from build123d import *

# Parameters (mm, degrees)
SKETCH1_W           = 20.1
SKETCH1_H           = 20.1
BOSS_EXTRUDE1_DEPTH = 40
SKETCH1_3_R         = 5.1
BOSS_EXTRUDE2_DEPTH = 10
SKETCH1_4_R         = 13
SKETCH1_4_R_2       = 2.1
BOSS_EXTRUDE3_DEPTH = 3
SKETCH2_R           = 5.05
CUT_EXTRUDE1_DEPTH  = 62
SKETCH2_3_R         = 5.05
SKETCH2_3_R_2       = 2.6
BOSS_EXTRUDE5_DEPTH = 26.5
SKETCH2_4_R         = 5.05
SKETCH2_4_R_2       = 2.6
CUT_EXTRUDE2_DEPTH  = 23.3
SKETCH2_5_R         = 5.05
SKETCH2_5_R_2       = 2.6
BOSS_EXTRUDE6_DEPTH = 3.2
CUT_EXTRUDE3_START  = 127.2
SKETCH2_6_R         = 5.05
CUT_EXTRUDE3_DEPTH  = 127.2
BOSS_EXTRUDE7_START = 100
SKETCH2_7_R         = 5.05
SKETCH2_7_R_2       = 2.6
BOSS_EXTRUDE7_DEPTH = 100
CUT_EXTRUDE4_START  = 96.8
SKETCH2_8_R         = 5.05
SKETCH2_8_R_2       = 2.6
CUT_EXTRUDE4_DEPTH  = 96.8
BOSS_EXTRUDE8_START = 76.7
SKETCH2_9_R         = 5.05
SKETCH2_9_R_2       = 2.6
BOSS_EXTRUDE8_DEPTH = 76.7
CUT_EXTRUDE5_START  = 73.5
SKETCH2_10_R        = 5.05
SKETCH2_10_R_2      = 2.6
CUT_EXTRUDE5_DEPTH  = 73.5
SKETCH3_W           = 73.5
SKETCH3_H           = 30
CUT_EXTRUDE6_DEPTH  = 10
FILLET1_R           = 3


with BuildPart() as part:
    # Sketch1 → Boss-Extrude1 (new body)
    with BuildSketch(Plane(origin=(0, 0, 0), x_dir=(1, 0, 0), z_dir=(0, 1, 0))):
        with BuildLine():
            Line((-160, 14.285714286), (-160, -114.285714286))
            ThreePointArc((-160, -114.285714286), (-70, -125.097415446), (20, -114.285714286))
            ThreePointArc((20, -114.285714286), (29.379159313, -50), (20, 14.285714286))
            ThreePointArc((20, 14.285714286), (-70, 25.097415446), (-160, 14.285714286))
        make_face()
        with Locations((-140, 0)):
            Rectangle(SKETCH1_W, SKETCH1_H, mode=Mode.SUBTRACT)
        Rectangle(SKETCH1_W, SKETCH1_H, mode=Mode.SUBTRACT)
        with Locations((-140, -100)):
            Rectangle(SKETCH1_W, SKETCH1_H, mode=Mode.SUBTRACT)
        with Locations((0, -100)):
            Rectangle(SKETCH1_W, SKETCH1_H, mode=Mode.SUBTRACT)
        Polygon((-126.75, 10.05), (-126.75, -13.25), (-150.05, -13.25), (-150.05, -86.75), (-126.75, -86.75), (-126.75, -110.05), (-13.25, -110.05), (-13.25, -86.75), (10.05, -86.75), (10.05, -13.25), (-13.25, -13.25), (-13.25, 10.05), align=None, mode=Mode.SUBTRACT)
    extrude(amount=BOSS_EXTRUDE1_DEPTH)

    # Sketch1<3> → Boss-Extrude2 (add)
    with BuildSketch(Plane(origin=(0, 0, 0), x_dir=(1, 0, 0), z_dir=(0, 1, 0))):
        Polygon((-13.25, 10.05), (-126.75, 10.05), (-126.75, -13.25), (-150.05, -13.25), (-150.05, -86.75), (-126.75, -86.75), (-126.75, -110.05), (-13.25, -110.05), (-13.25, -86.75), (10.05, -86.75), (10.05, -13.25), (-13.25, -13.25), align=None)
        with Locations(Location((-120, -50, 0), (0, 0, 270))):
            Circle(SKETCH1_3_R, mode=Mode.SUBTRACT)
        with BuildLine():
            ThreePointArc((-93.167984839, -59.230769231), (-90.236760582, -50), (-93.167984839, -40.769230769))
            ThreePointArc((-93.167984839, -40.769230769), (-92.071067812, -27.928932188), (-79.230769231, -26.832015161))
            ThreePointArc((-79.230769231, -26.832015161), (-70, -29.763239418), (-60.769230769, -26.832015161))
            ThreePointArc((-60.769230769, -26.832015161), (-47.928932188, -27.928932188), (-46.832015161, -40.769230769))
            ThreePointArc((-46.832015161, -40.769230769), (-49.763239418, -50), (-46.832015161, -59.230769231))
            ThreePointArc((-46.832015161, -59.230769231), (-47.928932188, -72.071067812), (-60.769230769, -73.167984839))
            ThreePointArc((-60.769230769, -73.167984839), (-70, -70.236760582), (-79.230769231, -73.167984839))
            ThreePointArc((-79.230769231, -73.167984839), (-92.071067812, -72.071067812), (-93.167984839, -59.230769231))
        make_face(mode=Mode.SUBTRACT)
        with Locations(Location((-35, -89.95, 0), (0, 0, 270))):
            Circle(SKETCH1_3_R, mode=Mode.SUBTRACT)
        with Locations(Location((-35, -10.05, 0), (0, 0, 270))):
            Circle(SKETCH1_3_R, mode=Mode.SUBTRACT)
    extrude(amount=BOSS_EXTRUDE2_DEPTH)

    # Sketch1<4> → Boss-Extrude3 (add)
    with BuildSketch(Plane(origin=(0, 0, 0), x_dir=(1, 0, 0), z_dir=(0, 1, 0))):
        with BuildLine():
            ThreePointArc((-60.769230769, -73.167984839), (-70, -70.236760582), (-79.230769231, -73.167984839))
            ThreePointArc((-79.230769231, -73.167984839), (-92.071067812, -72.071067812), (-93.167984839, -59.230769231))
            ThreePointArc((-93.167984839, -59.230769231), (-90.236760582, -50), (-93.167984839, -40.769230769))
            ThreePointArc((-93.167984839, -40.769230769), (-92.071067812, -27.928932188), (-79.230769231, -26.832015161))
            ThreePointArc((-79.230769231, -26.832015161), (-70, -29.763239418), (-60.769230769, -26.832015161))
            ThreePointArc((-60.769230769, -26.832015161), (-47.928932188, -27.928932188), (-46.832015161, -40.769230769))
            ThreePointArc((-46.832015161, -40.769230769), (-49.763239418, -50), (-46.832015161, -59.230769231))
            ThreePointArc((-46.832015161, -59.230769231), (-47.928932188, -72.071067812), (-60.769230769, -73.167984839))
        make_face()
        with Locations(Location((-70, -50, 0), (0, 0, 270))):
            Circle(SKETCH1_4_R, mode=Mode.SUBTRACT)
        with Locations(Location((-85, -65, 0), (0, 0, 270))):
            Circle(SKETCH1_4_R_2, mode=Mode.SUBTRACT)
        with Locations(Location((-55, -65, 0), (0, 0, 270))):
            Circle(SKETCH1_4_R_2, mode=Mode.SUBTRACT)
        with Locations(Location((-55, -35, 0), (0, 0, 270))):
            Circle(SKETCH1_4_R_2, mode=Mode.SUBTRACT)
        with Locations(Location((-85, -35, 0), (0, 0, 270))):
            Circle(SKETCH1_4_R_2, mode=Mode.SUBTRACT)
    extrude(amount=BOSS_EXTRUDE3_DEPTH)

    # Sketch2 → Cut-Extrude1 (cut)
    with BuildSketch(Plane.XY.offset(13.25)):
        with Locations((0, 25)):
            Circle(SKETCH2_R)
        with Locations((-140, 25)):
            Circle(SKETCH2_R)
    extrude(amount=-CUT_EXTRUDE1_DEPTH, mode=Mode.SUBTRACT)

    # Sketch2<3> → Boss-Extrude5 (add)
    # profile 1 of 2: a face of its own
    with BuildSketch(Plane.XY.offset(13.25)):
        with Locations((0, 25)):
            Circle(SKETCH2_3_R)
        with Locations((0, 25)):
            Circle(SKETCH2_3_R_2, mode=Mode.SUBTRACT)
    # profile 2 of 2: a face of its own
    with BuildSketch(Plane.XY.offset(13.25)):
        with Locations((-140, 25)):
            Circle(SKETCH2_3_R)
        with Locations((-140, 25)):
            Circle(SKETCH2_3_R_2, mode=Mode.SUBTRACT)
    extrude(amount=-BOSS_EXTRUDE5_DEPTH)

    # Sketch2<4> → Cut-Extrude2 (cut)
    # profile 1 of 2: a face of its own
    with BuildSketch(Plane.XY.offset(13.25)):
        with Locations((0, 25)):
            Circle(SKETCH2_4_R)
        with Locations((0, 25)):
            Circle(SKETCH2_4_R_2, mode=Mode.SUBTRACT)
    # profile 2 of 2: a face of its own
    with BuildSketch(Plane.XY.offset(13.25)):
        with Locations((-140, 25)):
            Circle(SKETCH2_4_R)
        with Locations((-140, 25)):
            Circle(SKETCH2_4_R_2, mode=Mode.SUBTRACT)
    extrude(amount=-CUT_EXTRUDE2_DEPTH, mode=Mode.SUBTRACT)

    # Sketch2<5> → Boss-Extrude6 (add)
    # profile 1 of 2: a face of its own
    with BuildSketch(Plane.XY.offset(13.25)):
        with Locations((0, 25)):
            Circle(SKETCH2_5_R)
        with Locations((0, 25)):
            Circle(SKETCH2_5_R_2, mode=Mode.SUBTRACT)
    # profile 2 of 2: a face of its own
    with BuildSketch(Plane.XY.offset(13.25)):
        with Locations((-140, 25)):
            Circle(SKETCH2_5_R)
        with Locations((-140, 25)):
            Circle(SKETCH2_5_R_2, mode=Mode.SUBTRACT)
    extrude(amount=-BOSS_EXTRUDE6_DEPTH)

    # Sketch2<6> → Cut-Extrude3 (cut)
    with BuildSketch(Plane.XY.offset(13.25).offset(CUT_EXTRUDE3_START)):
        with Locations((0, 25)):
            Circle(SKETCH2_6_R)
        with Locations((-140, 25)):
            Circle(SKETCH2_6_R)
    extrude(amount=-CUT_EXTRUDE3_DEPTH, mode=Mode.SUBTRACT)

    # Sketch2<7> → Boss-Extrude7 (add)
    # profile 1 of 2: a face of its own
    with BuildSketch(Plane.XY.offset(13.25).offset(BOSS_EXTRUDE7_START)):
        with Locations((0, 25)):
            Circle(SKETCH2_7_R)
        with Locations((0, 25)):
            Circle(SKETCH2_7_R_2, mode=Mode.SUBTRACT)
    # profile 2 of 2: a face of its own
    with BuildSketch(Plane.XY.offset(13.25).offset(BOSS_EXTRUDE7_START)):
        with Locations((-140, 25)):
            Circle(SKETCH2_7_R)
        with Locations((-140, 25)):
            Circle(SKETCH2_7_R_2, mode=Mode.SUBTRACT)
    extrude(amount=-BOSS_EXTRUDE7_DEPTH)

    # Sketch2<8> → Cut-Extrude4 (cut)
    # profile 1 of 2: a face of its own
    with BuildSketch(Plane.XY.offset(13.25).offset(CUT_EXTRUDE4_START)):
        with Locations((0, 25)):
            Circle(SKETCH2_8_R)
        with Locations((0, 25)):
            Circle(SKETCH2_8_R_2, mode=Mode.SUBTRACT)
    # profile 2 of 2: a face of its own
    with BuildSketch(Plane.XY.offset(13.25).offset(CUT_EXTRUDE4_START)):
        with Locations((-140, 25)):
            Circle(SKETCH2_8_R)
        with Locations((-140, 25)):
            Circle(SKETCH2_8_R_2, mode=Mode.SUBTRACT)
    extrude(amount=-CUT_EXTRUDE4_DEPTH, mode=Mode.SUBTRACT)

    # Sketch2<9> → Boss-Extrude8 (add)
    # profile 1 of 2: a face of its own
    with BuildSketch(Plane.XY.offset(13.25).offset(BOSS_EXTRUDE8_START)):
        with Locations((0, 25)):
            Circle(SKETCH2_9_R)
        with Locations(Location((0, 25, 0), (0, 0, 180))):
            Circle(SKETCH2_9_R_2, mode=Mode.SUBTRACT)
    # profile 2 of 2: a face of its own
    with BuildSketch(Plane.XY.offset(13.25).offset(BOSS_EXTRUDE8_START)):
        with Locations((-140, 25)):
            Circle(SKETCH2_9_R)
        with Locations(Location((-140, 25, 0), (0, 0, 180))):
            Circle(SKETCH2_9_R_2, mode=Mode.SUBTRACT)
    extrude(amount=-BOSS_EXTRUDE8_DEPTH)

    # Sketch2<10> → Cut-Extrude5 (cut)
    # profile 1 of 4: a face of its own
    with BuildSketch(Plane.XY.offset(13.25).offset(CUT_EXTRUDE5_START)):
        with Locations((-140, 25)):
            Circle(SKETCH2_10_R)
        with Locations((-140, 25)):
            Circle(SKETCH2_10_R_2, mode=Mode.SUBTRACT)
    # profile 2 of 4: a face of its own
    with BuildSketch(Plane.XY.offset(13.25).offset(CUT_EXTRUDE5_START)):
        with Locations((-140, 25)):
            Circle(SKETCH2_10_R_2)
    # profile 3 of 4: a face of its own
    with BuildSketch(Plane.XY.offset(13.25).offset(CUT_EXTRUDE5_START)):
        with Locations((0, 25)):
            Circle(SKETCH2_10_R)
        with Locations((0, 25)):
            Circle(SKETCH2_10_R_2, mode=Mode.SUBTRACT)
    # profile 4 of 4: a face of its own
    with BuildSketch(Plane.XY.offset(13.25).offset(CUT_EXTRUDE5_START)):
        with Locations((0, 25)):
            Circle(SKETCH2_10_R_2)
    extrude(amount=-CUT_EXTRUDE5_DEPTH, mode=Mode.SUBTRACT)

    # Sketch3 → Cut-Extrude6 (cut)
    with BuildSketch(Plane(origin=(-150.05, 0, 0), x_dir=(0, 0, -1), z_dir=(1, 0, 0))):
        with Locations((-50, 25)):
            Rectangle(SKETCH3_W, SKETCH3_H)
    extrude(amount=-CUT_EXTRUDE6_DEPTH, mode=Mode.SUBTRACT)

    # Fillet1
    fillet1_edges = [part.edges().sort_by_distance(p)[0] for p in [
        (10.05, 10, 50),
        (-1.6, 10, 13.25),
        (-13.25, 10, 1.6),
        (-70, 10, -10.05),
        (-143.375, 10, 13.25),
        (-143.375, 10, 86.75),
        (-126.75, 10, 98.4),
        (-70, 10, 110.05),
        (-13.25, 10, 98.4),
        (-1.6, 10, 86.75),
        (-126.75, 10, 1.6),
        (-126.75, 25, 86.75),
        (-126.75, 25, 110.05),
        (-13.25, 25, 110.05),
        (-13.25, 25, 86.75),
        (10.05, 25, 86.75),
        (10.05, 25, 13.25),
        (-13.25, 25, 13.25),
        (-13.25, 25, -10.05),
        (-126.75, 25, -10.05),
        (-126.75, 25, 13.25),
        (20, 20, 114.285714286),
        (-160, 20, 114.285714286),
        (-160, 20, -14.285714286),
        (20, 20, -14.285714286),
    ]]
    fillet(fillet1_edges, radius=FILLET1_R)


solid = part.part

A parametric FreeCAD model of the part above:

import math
import FreeCAD as App
import Part
import Sketcher
from FreeCAD import Vector


def edges_at(feature, points):
    """Names of the edges that pass closest to the given points."""
    edges = feature.Shape.Edges
    near = lambda p: min(range(len(edges)), key=lambda i: edges[i].distToShape(Part.Vertex(*p))[0])
    return sorted({f"Edge{near(p) + 1}" for p in points})


def add_polygon(sketch, points):
    """Adds a closed chain of lines whose ends are joined by coincident constraints."""
    first, n = sketch.GeometryCount, len(points)
    for a, b in zip(points, points[1:] + points[:1]):
        sketch.addGeometry(Part.LineSegment(App.Vector(*a, 0), App.Vector(*b, 0)), False)
    for i in range(n):
        sketch.addConstraint(Sketcher.Constraint("Coincident", first + i, 2, first + (i + 1) % n, 1))

doc = App.newDocument("Part")
body = doc.addObject("PartDesign::Body", "Body")

# Sketch on XZ plane
sketch1 = body.newObject("Sketcher::SketchObject", "Sketch")
sketch1.AttachmentSupport = (doc.getObject("XZ_Plane"), [""])
sketch1.MapMode = "FlatFace"
sketch1.addGeometry(Part.LineSegment(Vector(-160, -14.285714, 0), Vector(-160, 114.285714, 0)), False)  # 0
sketch1.addGeometry(Part.ArcOfCircle(Part.Circle(Vector(-70, -254.902585, 0), Vector(0, 0, 1), 380), math.radians(76.299767), math.radians(103.700233)), False)  # 1
sketch1.addGeometry(Part.ArcOfCircle(Part.Circle(Vector(-195.620841, 50, 0), Vector(0, 0, 1), 225), math.radians(-16.60155), math.radians(16.60155)), False)  # 2
sketch1.addGeometry(Part.ArcOfCircle(Part.Circle(Vector(-70, 354.902585, 0), Vector(0, 0, 1), 380), math.radians(-103.700233), math.radians(-76.299767)), False)  # 3
add_polygon(sketch1, [(-129.95, 110.05), (-150.05, 110.05), (-150.05, 89.95), (-129.95, 89.95)])  # lines 4-7
add_polygon(sketch1, [(-126.75, 13.25), (-126.75, -10.05), (-13.25, -10.05), (-13.25, 13.25), (10.05, 13.25), (10.05, 86.75), (-13.25, 86.75), (-13.25, 110.05), (-126.75, 110.05), (-126.75, 86.75), (-150.05, 86.75), (-150.05, 13.25)])  # lines 8-19
add_polygon(sketch1, [(10.05, 110.05), (-10.05, 110.05), (-10.05, 89.95), (10.05, 89.95)])  # lines 20-23
add_polygon(sketch1, [(-129.95, 10.05), (-150.05, 10.05), (-150.05, -10.05), (-129.95, -10.05)])  # lines 24-27
add_polygon(sketch1, [(10.05, 10.05), (-10.05, 10.05), (-10.05, -10.05), (10.05, -10.05)])  # lines 28-31
sketch1.addConstraint([
    Sketcher.Constraint("Coincident", 0, 2, 1, 2),
    Sketcher.Constraint("Coincident", 1, 1, 2, 2),
    Sketcher.Constraint("Coincident", 2, 1, 3, 2),
    Sketcher.Constraint("Coincident", 3, 1, 0, 1),
    Sketcher.Constraint("Vertical", 0),
    Sketcher.Constraint("Horizontal", 4),
    Sketcher.Constraint("Vertical", 5),
    Sketcher.Constraint("Horizontal", 6),
    Sketcher.Constraint("Vertical", 7),
    Sketcher.Constraint("Vertical", 8),
    Sketcher.Constraint("Horizontal", 9),
    Sketcher.Constraint("Vertical", 10),
    Sketcher.Constraint("Horizontal", 11),
    Sketcher.Constraint("Vertical", 12),
    Sketcher.Constraint("Horizontal", 13),
    Sketcher.Constraint("Vertical", 14),
    Sketcher.Constraint("Horizontal", 15),
    Sketcher.Constraint("Vertical", 16),
    Sketcher.Constraint("Horizontal", 17),
    Sketcher.Constraint("Vertical", 18),
    Sketcher.Constraint("Horizontal", 19),
    Sketcher.Constraint("Horizontal", 20),
    Sketcher.Constraint("Vertical", 21),
    Sketcher.Constraint("Horizontal", 22),
    Sketcher.Constraint("Vertical", 23),
    Sketcher.Constraint("Horizontal", 24),
    Sketcher.Constraint("Vertical", 25),
    Sketcher.Constraint("Horizontal", 26),
    Sketcher.Constraint("Vertical", 27),
    Sketcher.Constraint("Horizontal", 28),
    Sketcher.Constraint("Vertical", 29),
    Sketcher.Constraint("Horizontal", 30),
    Sketcher.Constraint("Vertical", 31),
    Sketcher.Constraint("Equal", 1, 3),
    Sketcher.Constraint("Symmetric", 28, 2, 30, 2, -1, 1),
    Sketcher.Constraint("Horizontal", 0, 2, 1, 1),
    Sketcher.Constraint("Horizontal", 2, 1, 3, 1),
    Sketcher.Constraint("Horizontal", 7, 2, 14, 2),
    Sketcher.Constraint("Horizontal", 13, 2, 16, 2),
    Sketcher.Constraint("Horizontal", 11, 2, 18, 2),
    Sketcher.Constraint("Horizontal", 15, 2, 20, 2),
    Sketcher.Constraint("Horizontal", 6, 2, 21, 2),
    Sketcher.Constraint("Horizontal", 9, 2, 25, 2),
    Sketcher.Constraint("Horizontal", 27, 2, 28, 2),
    Sketcher.Constraint("Horizontal", 26, 2, 29, 2),
    Sketcher.Constraint("Vertical", 1, 3, 3, 3),
    Sketcher.Constraint("Vertical", 10, 2, 13, 2),
    Sketcher.Constraint("Vertical", 8, 2, 15, 2),
    Sketcher.Constraint("Vertical", 5, 2, 17, 2),
    Sketcher.Constraint("Vertical", 12, 2, 22, 2),
    Sketcher.Constraint("Vertical", 18, 2, 24, 2),
    Sketcher.Constraint("Vertical", 7, 2, 26, 2),
    Sketcher.Constraint("Vertical", 21, 2, 28, 2),
    Sketcher.Constraint("Vertical", 23, 2, 30, 2),
    Sketcher.Constraint("Equal", 13, 17),
    Sketcher.Constraint("Equal", 6, 20),
    Sketcher.Constraint("Equal", 30, 5),
    Sketcher.Constraint("Equal", 19, 8),
    Sketcher.Constraint("Equal", 10, 14),
    Sketcher.Constraint("Equal", 23, 25),
    Sketcher.Constraint("Radius", 1, 380.0),
    Sketcher.Constraint("Radius", 2, 225.0),
    Sketcher.Constraint("DistanceX", 4, 2, 4, 1, 20.1),
    Sketcher.Constraint("DistanceX", 9, 1, 9, 2, 113.5),
    Sketcher.Constraint("DistanceX", 11, 1, 11, 2, 23.3),
    Sketcher.Constraint("DistanceY", 12, 1, 12, 2, 73.5),
    Sketcher.Constraint("DistanceX", 1, 3, -1, 1, 70.0),
    Sketcher.Constraint("DistanceY", -1, 1, 2, 3, 50.0),
    Sketcher.Constraint("DistanceX", 0, 2, -1, 1, 160.0),
    Sketcher.Constraint("DistanceY", 0, 1, 0, 2, 128.571429),
])
pad1 = body.newObject("PartDesign::Pad", "Pad")
pad1.Profile = sketch1
pad1.Length = 40
pad1.Reversed = True

# Sketch on XZ plane
sketch2 = body.newObject("Sketcher::SketchObject", "Sketch001")
sketch2.AttachmentSupport = (doc.getObject("XZ_Plane"), [""])
sketch2.MapMode = "FlatFace"
add_polygon(sketch2, [(-13.25, -10.05), (-126.75, -10.05), (-126.75, 13.25), (-150.05, 13.25), (-150.05, 86.75), (-126.75, 86.75), (-126.75, 110.05), (-13.25, 110.05), (-13.25, 86.75), (10.05, 86.75), (10.05, 13.25), (-13.25, 13.25)])  # lines 0-11
sketch2.addGeometry(Part.Circle(Vector(-35, 89.95, 0), Vector(0, 0, 1), 5.1), False)  # 12
sketch2.addGeometry(Part.Circle(Vector(-120, 50, 0), Vector(0, 0, 1), 5.1), False)  # 13
sketch2.addGeometry(Part.ArcOfCircle(Part.Circle(Vector(-85, 65, 0), Vector(0, 0, 1), 10), math.radians(54.765582), math.radians(215.234418)), False)  # 14
sketch2.addGeometry(Part.ArcOfCircle(Part.Circle(Vector(-106.236761, 50, 0), Vector(0, 0, 1), 16), math.radians(-35.234418), math.radians(35.234418)), False)  # 15
sketch2.addGeometry(Part.ArcOfCircle(Part.Circle(Vector(-85, 35, 0), Vector(0, 0, 1), 10), math.radians(144.765582), math.radians(305.234418)), False)  # 16
sketch2.addGeometry(Part.ArcOfCircle(Part.Circle(Vector(-70, 13.763239, 0), Vector(0, 0, 1), 16), math.radians(54.765582), math.radians(125.234418)), False)  # 17
sketch2.addGeometry(Part.ArcOfCircle(Part.Circle(Vector(-55, 35, 0), Vector(0, 0, 1), 10), math.radians(-125.234418), math.radians(35.234418)), False)  # 18
sketch2.addGeometry(Part.ArcOfCircle(Part.Circle(Vector(-33.763239, 50, 0), Vector(0, 0, 1), 16), math.radians(144.765582), math.radians(215.234418)), False)  # 19
sketch2.addGeometry(Part.ArcOfCircle(Part.Circle(Vector(-55, 65, 0), Vector(0, 0, 1), 10), math.radians(-35.234418), math.radians(125.234418)), False)  # 20
sketch2.addGeometry(Part.ArcOfCircle(Part.Circle(Vector(-70, 86.236761, 0), Vector(0, 0, 1), 16), math.radians(-125.234418), math.radians(-54.765582)), False)  # 21
sketch2.addGeometry(Part.Circle(Vector(-35, 10.05, 0), Vector(0, 0, 1), 5.1), False)  # 22
sketch2.addConstraint([
    Sketcher.Constraint("Tangent", 14, 2, 15, 2),
    Sketcher.Constraint("Tangent", 15, 1, 16, 1),
    Sketcher.Constraint("Tangent", 16, 2, 17, 2),
    Sketcher.Constraint("Tangent", 17, 1, 18, 1),
    Sketcher.Constraint("Tangent", 18, 2, 19, 2),
    Sketcher.Constraint("Tangent", 19, 1, 20, 1),
    Sketcher.Constraint("Tangent", 20, 2, 21, 2),
    Sketcher.Constraint("Tangent", 21, 1, 14, 1),
    Sketcher.Constraint("Horizontal", 0),
    Sketcher.Constraint("Vertical", 1),
    Sketcher.Constraint("Horizontal", 2),
    Sketcher.Constraint("Vertical", 3),
    Sketcher.Constraint("Horizontal", 4),
    Sketcher.Constraint("Vertical", 5),
    Sketcher.Constraint("Horizontal", 6),
    Sketcher.Constraint("Vertical", 7),
    Sketcher.Constraint("Horizontal", 8),
    Sketcher.Constraint("Vertical", 9),
    Sketcher.Constraint("Horizontal", 10),
    Sketcher.Constraint("Vertical", 11),
    Sketcher.Constraint("Equal", 12, 13),
    Sketcher.Constraint("Equal", 14, 16),
    Sketcher.Constraint("Equal", 15, 17),
    Sketcher.Constraint("Equal", 16, 18),
    Sketcher.Constraint("Equal", 17, 19),
    Sketcher.Constraint("Equal", 18, 20),
    Sketcher.Constraint("Equal", 19, 21),
    Sketcher.Constraint("Equal", 13, 22),
    Sketcher.Constraint("Horizontal", 13, 3, 15, 3),
    Sketcher.Constraint("Horizontal", 16, 3, 18, 3),
    Sketcher.Constraint("Horizontal", 15, 3, 19, 3),
    Sketcher.Constraint("Horizontal", 14, 3, 20, 3),
    Sketcher.Constraint("Horizontal", 4, 2, 7, 2),
    Sketcher.Constraint("Horizontal", 2, 2, 9, 2),
    Sketcher.Constraint("Vertical", 14, 3, 16, 3),
    Sketcher.Constraint("Vertical", 12, 3, 22, 3),
    Sketcher.Constraint("Vertical", 1, 2, 4, 2),
    Sketcher.Constraint("Vertical", 7, 2, 10, 2),
    Sketcher.Constraint("Equal", 4, 8),
    Sketcher.Constraint("Equal", 10, 1),
    Sketcher.Constraint("Equal", 1, 5),
    Sketcher.Constraint("Radius", 14, 10.0),
    Sketcher.Constraint("Radius", 15, 16.0),
    Sketcher.Constraint("Diameter", 12, 10.2),
    Sketcher.Constraint("DistanceX", 0, 2, 0, 1, 113.5),
    Sketcher.Constraint("DistanceX", 2, 2, 2, 1, 23.3),
    Sketcher.Constraint("DistanceY", 3, 1, 3, 2, 73.5),
    Sketcher.Constraint("DistanceX", 12, 3, -1, 1, 35.0),
    Sketcher.Constraint("DistanceX", 13, 3, -1, 1, 120.0),
    Sketcher.Constraint("DistanceY", -1, 1, 13, 3, 50.0),
    Sketcher.Constraint("DistanceX", 14, 3, -1, 1, 85.0),
    Sketcher.Constraint("DistanceY", -1, 1, 14, 3, 65.0),
    Sketcher.Constraint("DistanceX", 17, 3, -1, 1, 70.0),
    Sketcher.Constraint("DistanceY", 12, 3, 6, 2, 20.1),
    Sketcher.Constraint("DistanceY", 22, 3, 9, 2, 3.2),
    Sketcher.Constraint("DistanceY", -1, 1, 12, 3, 89.95),
    Sketcher.Constraint("DistanceX", 0, 2, -1, 1, 126.75),
])
pad2 = body.newObject("PartDesign::Pad", "Pad001")
pad2.Profile = sketch2
pad2.Length = 10
pad2.Reversed = True

# Sketch on XZ plane
sketch3 = body.newObject("Sketcher::SketchObject", "Sketch002")
sketch3.AttachmentSupport = (doc.getObject("XZ_Plane"), [""])
sketch3.MapMode = "FlatFace"
sketch3.addGeometry([
    Part.ArcOfCircle(Part.Circle(Vector(-70, 86.236761, 0), Vector(0, 0, 1), 16), math.radians(-125.234418), math.radians(-54.765582)),  # 0
    Part.ArcOfCircle(Part.Circle(Vector(-55, 65, 0), Vector(0, 0, 1), 10), math.radians(-35.234418), math.radians(125.234418)),  # 1
    Part.ArcOfCircle(Part.Circle(Vector(-33.763239, 50, 0), Vector(0, 0, 1), 16), math.radians(144.765582), math.radians(215.234418)),  # 2
    Part.ArcOfCircle(Part.Circle(Vector(-55, 35, 0), Vector(0, 0, 1), 10), math.radians(-125.234418), math.radians(35.234418)),  # 3
    Part.ArcOfCircle(Part.Circle(Vector(-70, 13.763239, 0), Vector(0, 0, 1), 16), math.radians(54.765582), math.radians(125.234418)),  # 4
    Part.ArcOfCircle(Part.Circle(Vector(-85, 35, 0), Vector(0, 0, 1), 10), math.radians(144.765582), math.radians(305.234418)),  # 5
    Part.ArcOfCircle(Part.Circle(Vector(-106.236761, 50, 0), Vector(0, 0, 1), 16), math.radians(-35.234418), math.radians(35.234418)),  # 6
    Part.ArcOfCircle(Part.Circle(Vector(-85, 65, 0), Vector(0, 0, 1), 10), math.radians(54.765582), math.radians(215.234418)),  # 7
    Part.Circle(Vector(-55, 65, 0), Vector(0, 0, 1), 2.1),  # 8
    Part.Circle(Vector(-85, 65, 0), Vector(0, 0, 1), 2.1),  # 9
    Part.Circle(Vector(-70, 50, 0), Vector(0, 0, 1), 13),  # 10
    Part.Circle(Vector(-55, 35, 0), Vector(0, 0, 1), 2.1),  # 11
    Part.Circle(Vector(-85, 35, 0), Vector(0, 0, 1), 2.1),  # 12
], False)
sketch3.addConstraint([
    Sketcher.Constraint("Tangent", 0, 2, 1, 2),
    Sketcher.Constraint("Tangent", 1, 1, 2, 1),
    Sketcher.Constraint("Tangent", 2, 2, 3, 2),
    Sketcher.Constraint("Tangent", 3, 1, 4, 1),
    Sketcher.Constraint("Tangent", 4, 2, 5, 2),
    Sketcher.Constraint("Tangent", 5, 1, 6, 1),
    Sketcher.Constraint("Tangent", 6, 2, 7, 2),
    Sketcher.Constraint("Tangent", 7, 1, 0, 1),
    Sketcher.Constraint("Coincident", 8, 3, 1, 3),
    Sketcher.Constraint("Coincident", 9, 3, 7, 3),
    Sketcher.Constraint("Coincident", 11, 3, 3, 3),
    Sketcher.Constraint("Coincident", 12, 3, 5, 3),
    Sketcher.Constraint("Equal", 0, 2),
    Sketcher.Constraint("Equal", 1, 3),
    Sketcher.Constraint("Equal", 2, 4),
    Sketcher.Constraint("Equal", 3, 5),
    Sketcher.Constraint("Equal", 4, 6),
    Sketcher.Constraint("Equal", 5, 7),
    Sketcher.Constraint("Equal", 8, 9),
    Sketcher.Constraint("Equal", 9, 11),
    Sketcher.Constraint("Equal", 11, 12),
    Sketcher.Constraint("Horizontal", 3, 3, 5, 3),
    Sketcher.Constraint("Horizontal", 2, 3, 6, 3),
    Sketcher.Constraint("Horizontal", 1, 3, 7, 3),
    Sketcher.Constraint("Horizontal", 6, 3, 10, 3),
    Sketcher.Constraint("Vertical", 1, 3, 3, 3),
    Sketcher.Constraint("Vertical", 4, 3, 10, 3),
    Sketcher.Constraint("Diameter", 10, 26.0),
    Sketcher.Constraint("Radius", 0, 16.0),
    Sketcher.Constraint("Radius", 1, 10.0),
    Sketcher.Constraint("Diameter", 8, 4.2),
    Sketcher.Constraint("DistanceX", 0, 3, -1, 1, 70.0),
    Sketcher.Constraint("DistanceX", 1, 3, -1, 1, 55.0),
    Sketcher.Constraint("DistanceY", -1, 1, 1, 3, 65.0),
    Sketcher.Constraint("DistanceY", -1, 1, 2, 3, 50.0),
])
pad3 = body.newObject("PartDesign::Pad", "Pad002")
pad3.Profile = sketch3
pad3.Length = 3
pad3.Reversed = True

# Sketch on XY plane
sketch4 = body.newObject("Sketcher::SketchObject", "Sketch003")
sketch4.AttachmentSupport = (doc.getObject("XY_Plane"), [""])
sketch4.MapMode = "FlatFace"
sketch4.AttachmentOffset = App.Placement(Vector(0, 0, 13.25), App.Rotation())
sketch4.addGeometry([
    Part.Circle(Vector(0, 25, 0), Vector(0, 0, 1), 5.05),
    Part.Circle(Vector(-140, 25, 0), Vector(0, 0, 1), 5.05),
], False)
sketch4.addConstraint([
    Sketcher.Constraint("Equal", 0, 1),
    Sketcher.Constraint("PointOnObject", 0, 3, -2),
    Sketcher.Constraint("Horizontal", 0, 3, 1, 3),
    Sketcher.Constraint("Diameter", 0, 10.1),
    Sketcher.Constraint("DistanceY", -1, 1, 0, 3, 25.0),
    Sketcher.Constraint("DistanceX", 1, 3, -1, 1, 140.0),
])
pocket1 = body.newObject("PartDesign::Pocket", "Pocket")
pocket1.Profile = sketch4
pocket1.Length = 62

# Sketch on XY plane
sketch5 = body.newObject("Sketcher::SketchObject", "Sketch004")
sketch5.AttachmentSupport = (doc.getObject("XY_Plane"), [""])
sketch5.MapMode = "FlatFace"
sketch5.AttachmentOffset = App.Placement(Vector(0, 0, 13.25), App.Rotation())
sketch5.addGeometry([
    Part.Circle(Vector(0, 25, 0), Vector(0, 0, 1), 5.05),
    Part.Circle(Vector(0, 25, 0), Vector(0, 0, 1), 2.6),
    Part.Circle(Vector(-140, 25, 0), Vector(0, 0, 1), 5.05),
    Part.Circle(Vector(-140, 25, 0), Vector(0, 0, 1), 2.6),
], False)
sketch5.addConstraint([
    Sketcher.Constraint("Coincident", 1, 3, 0, 3),
    Sketcher.Constraint("Coincident", 3, 3, 2, 3),
    Sketcher.Constraint("Equal", 0, 2),
    Sketcher.Constraint("Equal", 1, 3),
    Sketcher.Constraint("PointOnObject", 0, 3, -2),
    Sketcher.Constraint("Horizontal", 1, 3, 2, 3),
    Sketcher.Constraint("Diameter", 0, 10.1),
    Sketcher.Constraint("Diameter", 1, 5.2),
    Sketcher.Constraint("DistanceY", -1, 1, 0, 3, 25.0),
    Sketcher.Constraint("DistanceX", 2, 3, -1, 1, 140.0),
])
pad4 = body.newObject("PartDesign::Pad", "Pad003")
pad4.Profile = sketch5
pad4.Length = 26.5
pad4.Reversed = True

# Sketch on XY plane
sketch6 = body.newObject("Sketcher::SketchObject", "Sketch005")
sketch6.AttachmentSupport = (doc.getObject("XY_Plane"), [""])
sketch6.MapMode = "FlatFace"
sketch6.AttachmentOffset = App.Placement(Vector(0, 0, 13.25), App.Rotation())
sketch6.addGeometry([
    Part.Circle(Vector(0, 25, 0), Vector(0, 0, 1), 5.05),
    Part.Circle(Vector(0, 25, 0), Vector(0, 0, 1), 2.6),
    Part.Circle(Vector(-140, 25, 0), Vector(0, 0, 1), 5.05),
    Part.Circle(Vector(-140, 25, 0), Vector(0, 0, 1), 2.6),
], False)
sketch6.addConstraint([
    Sketcher.Constraint("Coincident", 1, 3, 0, 3),
    Sketcher.Constraint("Coincident", 3, 3, 2, 3),
    Sketcher.Constraint("Equal", 0, 2),
    Sketcher.Constraint("Equal", 1, 3),
    Sketcher.Constraint("PointOnObject", 0, 3, -2),
    Sketcher.Constraint("Horizontal", 1, 3, 2, 3),
    Sketcher.Constraint("Diameter", 0, 10.1),
    Sketcher.Constraint("Diameter", 1, 5.2),
    Sketcher.Constraint("DistanceY", -1, 1, 0, 3, 25.0),
    Sketcher.Constraint("DistanceX", 2, 3, -1, 1, 140.0),
])
pocket2 = body.newObject("PartDesign::Pocket", "Pocket001")
pocket2.Profile = sketch6
pocket2.Length = 23.3

# Sketch on XY plane
sketch7 = body.newObject("Sketcher::SketchObject", "Sketch006")
sketch7.AttachmentSupport = (doc.getObject("XY_Plane"), [""])
sketch7.MapMode = "FlatFace"
sketch7.AttachmentOffset = App.Placement(Vector(0, 0, 13.25), App.Rotation())
sketch7.addGeometry([
    Part.Circle(Vector(0, 25, 0), Vector(0, 0, 1), 5.05),
    Part.Circle(Vector(0, 25, 0), Vector(0, 0, 1), 2.6),
    Part.Circle(Vector(-140, 25, 0), Vector(0, 0, 1), 5.05),
    Part.Circle(Vector(-140, 25, 0), Vector(0, 0, 1), 2.6),
], False)
sketch7.addConstraint([
    Sketcher.Constraint("Coincident", 1, 3, 0, 3),
    Sketcher.Constraint("Coincident", 3, 3, 2, 3),
    Sketcher.Constraint("Equal", 0, 2),
    Sketcher.Constraint("Equal", 1, 3),
    Sketcher.Constraint("PointOnObject", 0, 3, -2),
    Sketcher.Constraint("Horizontal", 1, 3, 2, 3),
    Sketcher.Constraint("Diameter", 0, 10.1),
    Sketcher.Constraint("Diameter", 1, 5.2),
    Sketcher.Constraint("DistanceY", -1, 1, 0, 3, 25.0),
    Sketcher.Constraint("DistanceX", 2, 3, -1, 1, 140.0),
])
pad5 = body.newObject("PartDesign::Pad", "Pad004")
pad5.Profile = sketch7
pad5.Length = 3.2
pad5.Reversed = True

# Sketch on XY plane
sketch8 = body.newObject("Sketcher::SketchObject", "Sketch007")
sketch8.AttachmentSupport = (doc.getObject("XY_Plane"), [""])
sketch8.MapMode = "FlatFace"
sketch8.AttachmentOffset = App.Placement(Vector(0, 0, 140.45), App.Rotation())
sketch8.addGeometry([
    Part.Circle(Vector(0, 25, 0), Vector(0, 0, 1), 5.05),
    Part.Circle(Vector(-140, 25, 0), Vector(0, 0, 1), 5.05),
], False)
sketch8.addConstraint([
    Sketcher.Constraint("Equal", 0, 1),
    Sketcher.Constraint("PointOnObject", 0, 3, -2),
    Sketcher.Constraint("Horizontal", 0, 3, 1, 3),
    Sketcher.Constraint("Diameter", 0, 10.1),
    Sketcher.Constraint("DistanceY", -1, 1, 0, 3, 25.0),
    Sketcher.Constraint("DistanceX", 1, 3, -1, 1, 140.0),
])
pocket3 = body.newObject("PartDesign::Pocket", "Pocket002")
pocket3.Profile = sketch8
pocket3.Length = 127.2

# Sketch on XY plane
sketch9 = body.newObject("Sketcher::SketchObject", "Sketch008")
sketch9.AttachmentSupport = (doc.getObject("XY_Plane"), [""])
sketch9.MapMode = "FlatFace"
sketch9.AttachmentOffset = App.Placement(Vector(0, 0, 113.25), App.Rotation())
sketch9.addGeometry([
    Part.Circle(Vector(0, 25, 0), Vector(0, 0, 1), 5.05),
    Part.Circle(Vector(0, 25, 0), Vector(0, 0, 1), 2.6),
    Part.Circle(Vector(-140, 25, 0), Vector(0, 0, 1), 5.05),
    Part.Circle(Vector(-140, 25, 0), Vector(0, 0, 1), 2.6),
], False)
sketch9.addConstraint([
    Sketcher.Constraint("Coincident", 1, 3, 0, 3),
    Sketcher.Constraint("Coincident", 3, 3, 2, 3),
    Sketcher.Constraint("Equal", 0, 2),
    Sketcher.Constraint("Equal", 1, 3),
    Sketcher.Constraint("PointOnObject", 0, 3, -2),
    Sketcher.Constraint("Horizontal", 1, 3, 2, 3),
    Sketcher.Constraint("Diameter", 0, 10.1),
    Sketcher.Constraint("Diameter", 1, 5.2),
    Sketcher.Constraint("DistanceY", -1, 1, 0, 3, 25.0),
    Sketcher.Constraint("DistanceX", 2, 3, -1, 1, 140.0),
])
pad6 = body.newObject("PartDesign::Pad", "Pad005")
pad6.Profile = sketch9
pad6.Length = 100
pad6.Reversed = True

# Sketch on XY plane
sketch10 = body.newObject("Sketcher::SketchObject", "Sketch009")
sketch10.AttachmentSupport = (doc.getObject("XY_Plane"), [""])
sketch10.MapMode = "FlatFace"
sketch10.AttachmentOffset = App.Placement(Vector(0, 0, 110.05), App.Rotation())
sketch10.addGeometry([
    Part.Circle(Vector(0, 25, 0), Vector(0, 0, 1), 5.05),
    Part.Circle(Vector(0, 25, 0), Vector(0, 0, 1), 2.6),
    Part.Circle(Vector(-140, 25, 0), Vector(0, 0, 1), 5.05),
    Part.Circle(Vector(-140, 25, 0), Vector(0, 0, 1), 2.6),
], False)
sketch10.addConstraint([
    Sketcher.Constraint("Coincident", 1, 3, 0, 3),
    Sketcher.Constraint("Coincident", 3, 3, 2, 3),
    Sketcher.Constraint("Equal", 0, 2),
    Sketcher.Constraint("Equal", 1, 3),
    Sketcher.Constraint("PointOnObject", 0, 3, -2),
    Sketcher.Constraint("Horizontal", 1, 3, 2, 3),
    Sketcher.Constraint("Diameter", 0, 10.1),
    Sketcher.Constraint("Diameter", 1, 5.2),
    Sketcher.Constraint("DistanceY", -1, 1, 0, 3, 25.0),
    Sketcher.Constraint("DistanceX", 2, 3, -1, 1, 140.0),
])
pocket4 = body.newObject("PartDesign::Pocket", "Pocket003")
pocket4.Profile = sketch10
pocket4.Length = 96.8

# Sketch on XY plane
sketch11 = body.newObject("Sketcher::SketchObject", "Sketch010")
sketch11.AttachmentSupport = (doc.getObject("XY_Plane"), [""])
sketch11.MapMode = "FlatFace"
sketch11.AttachmentOffset = App.Placement(Vector(0, 0, 89.95), App.Rotation())
sketch11.addGeometry([
    Part.Circle(Vector(0, 25, 0), Vector(0, 0, 1), 5.05),
    Part.Circle(Vector(0, 25, 0), Vector(0, 0, 1), 2.6),
    Part.Circle(Vector(-140, 25, 0), Vector(0, 0, 1), 5.05),
    Part.Circle(Vector(-140, 25, 0), Vector(0, 0, 1), 2.6),
], False)
sketch11.addConstraint([
    Sketcher.Constraint("Coincident", 1, 3, 0, 3),
    Sketcher.Constraint("Coincident", 3, 3, 2, 3),
    Sketcher.Constraint("Equal", 0, 2),
    Sketcher.Constraint("Equal", 1, 3),
    Sketcher.Constraint("PointOnObject", 0, 3, -2),
    Sketcher.Constraint("Horizontal", 1, 3, 2, 3),
    Sketcher.Constraint("Diameter", 0, 10.1),
    Sketcher.Constraint("Diameter", 1, 5.2),
    Sketcher.Constraint("DistanceY", -1, 1, 0, 3, 25.0),
    Sketcher.Constraint("DistanceX", 2, 3, -1, 1, 140.0),
])
pad7 = body.newObject("PartDesign::Pad", "Pad006")
pad7.Profile = sketch11
pad7.Length = 76.7
pad7.Reversed = True

# Sketch on XY plane
sketch12 = body.newObject("Sketcher::SketchObject", "Sketch011")
sketch12.AttachmentSupport = (doc.getObject("XY_Plane"), [""])
sketch12.MapMode = "FlatFace"
sketch12.AttachmentOffset = App.Placement(Vector(0, 0, 86.75), App.Rotation())
sketch12.addGeometry([
    Part.Circle(Vector(-140, 25, 0), Vector(0, 0, 1), 5.05),
    Part.Circle(Vector(0, 25, 0), Vector(0, 0, 1), 5.05),
], False)
sketch12.addConstraint([
    Sketcher.Constraint("Equal", 0, 1),
    Sketcher.Constraint("PointOnObject", 1, 3, -2),
    Sketcher.Constraint("Horizontal", 0, 3, 1, 3),
    Sketcher.Constraint("Diameter", 0, 10.1),
    Sketcher.Constraint("DistanceX", 0, 3, -1, 1, 140.0),
    Sketcher.Constraint("DistanceY", -1, 1, 0, 3, 25.0),
])
pocket5 = body.newObject("PartDesign::Pocket", "Pocket004")
pocket5.Profile = sketch12
pocket5.Length = 73.5

# Sketch on YZ plane
sketch13 = body.newObject("Sketcher::SketchObject", "Sketch012")
sketch13.AttachmentSupport = (doc.getObject("YZ_Plane"), [""])
sketch13.MapMode = "FlatFace"
sketch13.AttachmentOffset = App.Placement(Vector(0, 0, -150.05), App.Rotation())
add_polygon(sketch13, [(40, 86.75), (10, 86.75), (10, 13.25), (40, 13.25)])  # lines 0-3
sketch13.addConstraint([
    Sketcher.Constraint("Horizontal", 0),
    Sketcher.Constraint("Vertical", 1),
    Sketcher.Constraint("Horizontal", 2),
    Sketcher.Constraint("Vertical", 3),
    Sketcher.Constraint("DistanceX", 0, 2, 0, 1, 30.0),
    Sketcher.Constraint("DistanceY", 1, 2, 1, 1, 73.5),
    Sketcher.Constraint("DistanceX", -1, 1, 0, 2, 10.0),
    Sketcher.Constraint("DistanceY", -1, 1, 0, 2, 86.75),
])
pocket6 = body.newObject("PartDesign::Pocket", "Pocket005")
pocket6.Profile = sketch13
pocket6.Length = 10
doc.recompute()

fillet = body.newObject("PartDesign::Fillet", "Fillet")
fillet.Base = (pocket6, edges_at(pocket6, [
    (10.05, 10, 50),
    (-1.6, 10, 13.25),
    (-13.25, 10, 1.6),
    (-70, 10, -10.05),
    (-143.375, 10, 13.25),
    (-143.375, 10, 86.75),
    (-126.75, 10, 98.4),
    (-70, 10, 110.05),
    (-13.25, 10, 98.4),
    (-1.6, 10, 86.75),
    (-126.75, 10, 1.6),
    (-126.75, 25, 86.75),
    (-126.75, 25, 110.05),
    (-13.25, 25, 110.05),
    (-13.25, 25, 86.75),
    (10.05, 25, 86.75),
    (10.05, 25, 13.25),
    (-13.25, 25, 13.25),
    (-13.25, 25, -10.05),
    (-126.75, 25, -10.05),
    (-126.75, 25, 13.25),
    (20, 20, 114.286),
    (-160, 20, 114.286),
    (-160, 20, -14.286),
    (20, 20, -14.286),
]))
fillet.Radius = 3

doc.recompute()
